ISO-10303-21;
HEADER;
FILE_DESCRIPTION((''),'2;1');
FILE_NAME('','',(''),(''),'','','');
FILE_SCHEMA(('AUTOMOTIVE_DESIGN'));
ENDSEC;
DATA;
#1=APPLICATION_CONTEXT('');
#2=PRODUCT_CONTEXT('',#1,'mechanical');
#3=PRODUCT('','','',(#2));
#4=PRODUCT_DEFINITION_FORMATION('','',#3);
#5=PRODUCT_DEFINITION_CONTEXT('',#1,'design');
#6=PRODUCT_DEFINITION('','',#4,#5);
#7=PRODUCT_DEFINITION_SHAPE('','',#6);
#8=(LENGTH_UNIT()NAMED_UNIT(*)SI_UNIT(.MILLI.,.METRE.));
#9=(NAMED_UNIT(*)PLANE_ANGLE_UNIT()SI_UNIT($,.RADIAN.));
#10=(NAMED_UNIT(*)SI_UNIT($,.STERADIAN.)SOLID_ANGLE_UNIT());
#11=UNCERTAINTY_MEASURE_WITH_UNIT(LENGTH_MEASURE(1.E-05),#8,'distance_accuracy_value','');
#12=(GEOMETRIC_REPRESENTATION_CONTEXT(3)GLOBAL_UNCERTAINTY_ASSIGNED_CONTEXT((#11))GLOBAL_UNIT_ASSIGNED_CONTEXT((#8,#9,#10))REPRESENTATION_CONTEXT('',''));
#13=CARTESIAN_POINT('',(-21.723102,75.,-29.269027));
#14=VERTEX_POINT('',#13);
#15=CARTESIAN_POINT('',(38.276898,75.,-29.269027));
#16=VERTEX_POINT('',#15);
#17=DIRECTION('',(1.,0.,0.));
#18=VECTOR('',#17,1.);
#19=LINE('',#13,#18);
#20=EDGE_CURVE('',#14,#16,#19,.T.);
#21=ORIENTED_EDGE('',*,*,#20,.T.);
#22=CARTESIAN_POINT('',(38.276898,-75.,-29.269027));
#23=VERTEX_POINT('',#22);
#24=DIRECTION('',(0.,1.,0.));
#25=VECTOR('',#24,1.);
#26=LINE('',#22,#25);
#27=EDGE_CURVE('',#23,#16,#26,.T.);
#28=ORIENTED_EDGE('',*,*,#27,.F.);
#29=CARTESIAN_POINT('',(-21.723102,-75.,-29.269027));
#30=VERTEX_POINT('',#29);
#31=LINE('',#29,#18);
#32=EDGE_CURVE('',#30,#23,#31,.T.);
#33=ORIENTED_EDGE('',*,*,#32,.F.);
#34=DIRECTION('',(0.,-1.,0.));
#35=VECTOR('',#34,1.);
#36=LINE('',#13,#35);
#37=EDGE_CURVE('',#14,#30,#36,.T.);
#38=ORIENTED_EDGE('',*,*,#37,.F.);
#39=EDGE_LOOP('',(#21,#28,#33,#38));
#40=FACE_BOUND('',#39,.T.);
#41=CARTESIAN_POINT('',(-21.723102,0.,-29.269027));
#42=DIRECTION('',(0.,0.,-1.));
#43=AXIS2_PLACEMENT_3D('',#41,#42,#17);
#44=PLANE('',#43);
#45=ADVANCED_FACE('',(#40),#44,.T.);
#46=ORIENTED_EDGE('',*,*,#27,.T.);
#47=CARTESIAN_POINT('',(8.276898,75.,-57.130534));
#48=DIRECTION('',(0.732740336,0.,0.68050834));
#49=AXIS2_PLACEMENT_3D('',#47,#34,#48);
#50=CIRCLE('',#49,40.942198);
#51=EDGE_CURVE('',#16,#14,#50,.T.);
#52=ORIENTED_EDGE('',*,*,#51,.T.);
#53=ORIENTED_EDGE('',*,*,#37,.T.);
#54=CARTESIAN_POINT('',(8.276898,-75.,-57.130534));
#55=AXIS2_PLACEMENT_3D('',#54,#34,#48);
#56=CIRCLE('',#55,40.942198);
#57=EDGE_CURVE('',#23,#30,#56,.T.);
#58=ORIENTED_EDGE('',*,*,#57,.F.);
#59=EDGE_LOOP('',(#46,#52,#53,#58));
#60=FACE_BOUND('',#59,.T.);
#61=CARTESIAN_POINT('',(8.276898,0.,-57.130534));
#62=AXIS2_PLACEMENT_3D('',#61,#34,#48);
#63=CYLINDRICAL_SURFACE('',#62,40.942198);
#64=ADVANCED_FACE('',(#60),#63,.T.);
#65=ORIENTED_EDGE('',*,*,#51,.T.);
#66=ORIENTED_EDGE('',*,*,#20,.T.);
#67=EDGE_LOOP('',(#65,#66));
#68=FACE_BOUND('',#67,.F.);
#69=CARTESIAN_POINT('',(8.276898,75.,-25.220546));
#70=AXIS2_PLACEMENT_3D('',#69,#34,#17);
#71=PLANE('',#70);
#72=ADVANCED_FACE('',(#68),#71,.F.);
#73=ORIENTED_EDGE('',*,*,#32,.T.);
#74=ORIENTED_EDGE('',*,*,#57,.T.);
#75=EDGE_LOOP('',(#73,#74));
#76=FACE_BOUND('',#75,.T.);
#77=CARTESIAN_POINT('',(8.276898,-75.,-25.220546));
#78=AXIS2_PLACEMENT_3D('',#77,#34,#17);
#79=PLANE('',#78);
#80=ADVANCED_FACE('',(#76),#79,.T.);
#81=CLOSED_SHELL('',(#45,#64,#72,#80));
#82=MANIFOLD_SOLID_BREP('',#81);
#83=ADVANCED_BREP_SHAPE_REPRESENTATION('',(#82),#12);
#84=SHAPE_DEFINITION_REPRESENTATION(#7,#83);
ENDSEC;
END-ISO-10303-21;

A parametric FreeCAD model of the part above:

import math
import FreeCAD as App
import Part
import Sketcher
from FreeCAD import Vector
Q = App.Units.Quantity

doc = App.newDocument("Part")
body = doc.addObject("PartDesign::Body", "Body")

sketch1 = body.newObject("Sketcher::SketchObject", "Sketch")
sketch1.AttachmentSupport = (doc.getObject("XZ_Plane"), [""])
sketch1.MapMode = "FlatFace"
sketch1.addGeometry([
    Part.ArcOfCircle(Part.Circle(Vector(8, -57, 0), Vector(0, 0, 1), 41), math.radians(43), math.radians(137)),
    Part.LineSegment(Vector(-22, -29, 0), Vector(38, -29, 0)),
], False)
sketch1.addConstraint([
    Sketcher.Constraint("Coincident", 0, 1, 1, 2),
    Sketcher.Constraint("Coincident", 1, 1, 0, 2),
    Sketcher.Constraint("Horizontal", 1),
    Sketcher.Constraint("DistanceX", 1, 1, 1, 2, Q("60 mm")),
    Sketcher.Constraint("Radius", 0, Q("40.942198 mm")),
    Sketcher.Constraint("DistanceX", -1, 1, 0, 3, Q("8.276898 mm")),
    Sketcher.Constraint("DistanceY", 0, 3, -1, 1, Q("57.130534 mm")),
])
pad1 = body.newObject("PartDesign::Pad", "Pad")
pad1.Profile = sketch1
pad1.Length = 150
pad1.Midplane = True

doc.recompute()
